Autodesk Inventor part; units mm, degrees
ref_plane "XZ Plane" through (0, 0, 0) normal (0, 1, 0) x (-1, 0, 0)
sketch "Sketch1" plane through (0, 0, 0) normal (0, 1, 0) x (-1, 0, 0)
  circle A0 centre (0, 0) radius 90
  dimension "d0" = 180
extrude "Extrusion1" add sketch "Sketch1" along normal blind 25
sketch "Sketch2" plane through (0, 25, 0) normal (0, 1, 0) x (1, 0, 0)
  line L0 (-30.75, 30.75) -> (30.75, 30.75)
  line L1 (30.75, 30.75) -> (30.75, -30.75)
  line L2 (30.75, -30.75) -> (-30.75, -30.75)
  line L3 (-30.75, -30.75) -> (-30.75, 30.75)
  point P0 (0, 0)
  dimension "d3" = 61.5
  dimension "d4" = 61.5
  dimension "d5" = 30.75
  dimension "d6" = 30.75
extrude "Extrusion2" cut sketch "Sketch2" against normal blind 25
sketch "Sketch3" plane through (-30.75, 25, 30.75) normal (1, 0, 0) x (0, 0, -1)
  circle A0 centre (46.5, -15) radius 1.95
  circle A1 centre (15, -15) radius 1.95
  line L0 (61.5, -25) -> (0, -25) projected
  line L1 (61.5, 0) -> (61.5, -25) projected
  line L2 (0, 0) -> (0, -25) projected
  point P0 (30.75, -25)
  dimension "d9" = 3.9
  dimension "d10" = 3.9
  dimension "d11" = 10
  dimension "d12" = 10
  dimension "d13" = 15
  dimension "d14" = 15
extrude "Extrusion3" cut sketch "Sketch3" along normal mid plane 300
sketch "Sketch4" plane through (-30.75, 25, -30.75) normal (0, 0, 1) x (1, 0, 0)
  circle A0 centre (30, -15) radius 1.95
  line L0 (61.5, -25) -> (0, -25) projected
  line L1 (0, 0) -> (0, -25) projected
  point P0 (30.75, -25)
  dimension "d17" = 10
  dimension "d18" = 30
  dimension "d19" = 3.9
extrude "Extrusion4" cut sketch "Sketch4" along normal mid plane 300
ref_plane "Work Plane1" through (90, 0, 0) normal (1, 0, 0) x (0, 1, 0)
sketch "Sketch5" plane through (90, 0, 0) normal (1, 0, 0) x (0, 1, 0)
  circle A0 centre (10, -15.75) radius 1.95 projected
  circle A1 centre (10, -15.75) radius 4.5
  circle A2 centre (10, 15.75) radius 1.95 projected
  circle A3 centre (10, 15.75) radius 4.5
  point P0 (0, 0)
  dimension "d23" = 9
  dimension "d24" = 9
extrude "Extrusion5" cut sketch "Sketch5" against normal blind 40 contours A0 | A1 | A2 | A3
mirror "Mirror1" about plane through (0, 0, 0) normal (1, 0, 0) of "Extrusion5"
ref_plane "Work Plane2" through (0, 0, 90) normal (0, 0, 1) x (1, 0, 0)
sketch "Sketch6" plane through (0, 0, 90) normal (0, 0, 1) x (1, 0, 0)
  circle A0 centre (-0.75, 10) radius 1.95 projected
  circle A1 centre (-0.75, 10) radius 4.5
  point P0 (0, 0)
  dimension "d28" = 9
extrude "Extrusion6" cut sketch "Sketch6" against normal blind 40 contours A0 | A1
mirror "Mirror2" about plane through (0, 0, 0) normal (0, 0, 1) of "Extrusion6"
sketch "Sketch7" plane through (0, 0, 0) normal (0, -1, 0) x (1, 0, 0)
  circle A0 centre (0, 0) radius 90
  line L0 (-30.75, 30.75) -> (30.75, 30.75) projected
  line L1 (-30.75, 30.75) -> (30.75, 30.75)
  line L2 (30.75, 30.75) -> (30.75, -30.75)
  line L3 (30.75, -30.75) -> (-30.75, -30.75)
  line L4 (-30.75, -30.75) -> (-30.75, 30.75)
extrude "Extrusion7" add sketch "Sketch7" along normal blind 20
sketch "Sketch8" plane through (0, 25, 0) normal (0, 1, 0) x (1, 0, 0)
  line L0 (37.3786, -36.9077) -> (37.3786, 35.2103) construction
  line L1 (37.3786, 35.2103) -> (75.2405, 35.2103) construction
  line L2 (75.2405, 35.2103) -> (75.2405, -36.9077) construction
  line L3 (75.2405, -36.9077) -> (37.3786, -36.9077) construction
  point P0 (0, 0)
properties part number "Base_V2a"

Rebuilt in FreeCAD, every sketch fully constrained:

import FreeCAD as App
import Part
import Sketcher
from FreeCAD import Vector
Q = App.Units.Quantity


def add_polygon(sketch, points):
    """Adds a closed chain of lines whose ends are joined by coincident constraints."""
    first, n = sketch.GeometryCount, len(points)
    for a, b in zip(points, points[1:] + points[:1]):
        sketch.addGeometry(Part.LineSegment(App.Vector(*a, 0), App.Vector(*b, 0)), False)
    for i in range(n):
        sketch.addConstraint(Sketcher.Constraint("Coincident", first + i, 2, first + (i + 1) % n, 1))

doc = App.newDocument("Part")
body = doc.addObject("PartDesign::Body", "Body")

sketch1 = body.newObject("Sketcher::SketchObject", "Sketch")
sketch1.AttachmentSupport = (doc.getObject("XZ_Plane"), [""])
sketch1.MapMode = "FlatFace"
sketch1.addGeometry(Part.Circle(Vector(0, 0, 0), Vector(0, 0, 1), 90), False)
sketch1.addConstraint([
    Sketcher.Constraint("Coincident", 0, 3, -1, 1),
    Sketcher.Constraint("Diameter", 0, Q("180 mm")),
])
pad1 = body.newObject("PartDesign::Pad", "Pad")
pad1.Profile = sketch1
pad1.Length = 25
pad1.Reversed = True

sketch2 = body.newObject("Sketcher::SketchObject", "Sketch001")
sketch2.AttachmentSupport = (doc.getObject("XZ_Plane"), [""])
sketch2.MapMode = "FlatFace"
sketch2.AttachmentOffset = App.Placement(Vector(0, 0, -25), App.Rotation())
add_polygon(sketch2, [(31, -31), (-31, -31), (-31, 31), (31, 31)])
sketch2.addConstraint([
    Sketcher.Constraint("Horizontal", 0),
    Sketcher.Constraint("Vertical", 1),
    Sketcher.Constraint("Horizontal", 2),
    Sketcher.Constraint("Vertical", 3),
    Sketcher.Constraint("Symmetric", 0, 2, 2, 2, -1, 1),
    Sketcher.Constraint("Equal", 2, 1),
    Sketcher.Constraint("DistanceX", 0, 2, 0, 1, Q("61.5 mm")),
])
pocket1 = body.newObject("PartDesign::Pocket", "Pocket")
pocket1.Profile = sketch2
pocket1.Length = 25
pocket1.Reversed = True

sketch3 = body.newObject("Sketcher::SketchObject", "Sketch002")
sketch3.AttachmentSupport = (doc.getObject("YZ_Plane"), [""])
sketch3.MapMode = "FlatFace"
sketch3.AttachmentOffset = App.Placement(Vector(0, 0, -30.75), App.Rotation())
sketch3.addGeometry([
    Part.Circle(Vector(10, -15.8, 0), Vector(0, 0, 1), 1.9),
    Part.Circle(Vector(10, 15.8, 0), Vector(0, 0, 1), 1.9),
], False)
sketch3.addConstraint([
    Sketcher.Constraint("Equal", 0, 1),
    Sketcher.Constraint("Symmetric", 0, 3, 1, 3, -1),
    Sketcher.Constraint("Diameter", 0, Q("3.9 mm")),
    Sketcher.Constraint("DistanceX", -1, 1, 0, 3, Q("10 mm")),
    Sketcher.Constraint("DistanceY", 0, 3, 1, 3, Q("31.5 mm")),
])
pocket2 = body.newObject("PartDesign::Pocket", "Pocket001")
pocket2.Profile = sketch3
pocket2.Length = 300
pocket2.Midplane = True

sketch4 = body.newObject("Sketcher::SketchObject", "Sketch003")
sketch4.AttachmentSupport = (doc.getObject("XY_Plane"), [""])
sketch4.MapMode = "FlatFace"
sketch4.AttachmentOffset = App.Placement(Vector(0, 0, -30.75), App.Rotation())
sketch4.addGeometry(Part.Circle(Vector(-0.8, 10, 0), Vector(0, 0, 1), 1.9), False)
sketch4.addConstraint([
    Sketcher.Constraint("Diameter", 0, Q("3.9 mm")),
    Sketcher.Constraint("DistanceY", -1, 1, 0, 3, Q("10 mm")),
    Sketcher.Constraint("DistanceX", 0, 3, -1, 1, Q("0.75 mm")),
])
pocket3 = body.newObject("PartDesign::Pocket", "Pocket002")
pocket3.Profile = sketch4
pocket3.Length = 300
pocket3.Midplane = True

sketch5 = body.newObject("Sketcher::SketchObject", "Sketch004")
sketch5.AttachmentSupport = (doc.getObject("YZ_Plane"), [""])
sketch5.MapMode = "FlatFace"
sketch5.AttachmentOffset = App.Placement(Vector(0, 0, 90), App.Rotation())
sketch5.addGeometry([
    Part.Circle(Vector(10, -15.8, 0), Vector(0, 0, 1), 4.5),
    Part.Circle(Vector(10, 15.8, 0), Vector(0, 0, 1), 4.5),
], False)
sketch5.addConstraint([
    Sketcher.Constraint("Equal", 0, 1),
    Sketcher.Constraint("Symmetric", 0, 3, 1, 3, -1),
    Sketcher.Constraint("Diameter", 0, Q("9 mm")),
    Sketcher.Constraint("DistanceX", -1, 1, 0, 3, Q("10 mm")),
    Sketcher.Constraint("DistanceY", 0, 3, 1, 3, Q("31.5 mm")),
])
pocket4 = body.newObject("PartDesign::Pocket", "Pocket003")
pocket4.Profile = sketch5
pocket4.Length = 40
doc.recompute()

mirrored = body.newObject("PartDesign::Mirrored", "Mirrored")
mirrored.Originals = [pocket4]
mirrored.MirrorPlane = (doc.getObject("YZ_Plane"), [""])
body.Tip = mirrored

sketch6 = body.newObject("Sketcher::SketchObject", "Sketch005")
sketch6.AttachmentSupport = (doc.getObject("XY_Plane"), [""])
sketch6.MapMode = "FlatFace"
sketch6.AttachmentOffset = App.Placement(Vector(0, 0, 90), App.Rotation())
sketch6.addGeometry(Part.Circle(Vector(-0.8, 10, 0), Vector(0, 0, 1), 4.5), False)
sketch6.addConstraint([
    Sketcher.Constraint("Diameter", 0, Q("9 mm")),
    Sketcher.Constraint("DistanceY", -1, 1, 0, 3, Q("10 mm")),
    Sketcher.Constraint("DistanceX", 0, 3, -1, 1, Q("0.75 mm")),
])
pocket5 = body.newObject("PartDesign::Pocket", "Pocket004")
pocket5.Profile = sketch6
pocket5.Length = 40
doc.recompute()

mirrored2 = body.newObject("PartDesign::Mirrored", "Mirrored001")
mirrored2.Originals = [pocket5]
mirrored2.MirrorPlane = (doc.getObject("XY_Plane"), [""])
body.Tip = mirrored2

sketch7 = body.newObject("Sketcher::SketchObject", "Sketch006")
sketch7.AttachmentSupport = (doc.getObject("XZ_Plane"), [""])
sketch7.MapMode = "FlatFace"
sketch7.addGeometry(Part.Circle(Vector(0, 0, 0), Vector(0, 0, 1), 90), False)
add_polygon(sketch7, [(-31, -31), (-31, 31), (31, 31), (31, -31)])
sketch7.addConstraint([
    Sketcher.Constraint("Vertical", 1),
    Sketcher.Constraint("Horizontal", 2),
    Sketcher.Constraint("Vertical", 3),
    Sketcher.Constraint("Horizontal", 4),
    Sketcher.Constraint("Coincident", 0, 3, -1, 1),
    Sketcher.Constraint("Symmetric", 1, 2, 3, 2, -1, 1),
    Sketcher.Constraint("Equal", 4, 1),
    Sketcher.Constraint("Diameter", 0, Q("180 mm")),
    Sketcher.Constraint("DistanceX", 2, 1, 2, 2, Q("61.5 mm")),
])
pad2 = body.newObject("PartDesign::Pad", "Pad001")
pad2.Profile = sketch7
pad2.Length = 20

doc.recompute()
